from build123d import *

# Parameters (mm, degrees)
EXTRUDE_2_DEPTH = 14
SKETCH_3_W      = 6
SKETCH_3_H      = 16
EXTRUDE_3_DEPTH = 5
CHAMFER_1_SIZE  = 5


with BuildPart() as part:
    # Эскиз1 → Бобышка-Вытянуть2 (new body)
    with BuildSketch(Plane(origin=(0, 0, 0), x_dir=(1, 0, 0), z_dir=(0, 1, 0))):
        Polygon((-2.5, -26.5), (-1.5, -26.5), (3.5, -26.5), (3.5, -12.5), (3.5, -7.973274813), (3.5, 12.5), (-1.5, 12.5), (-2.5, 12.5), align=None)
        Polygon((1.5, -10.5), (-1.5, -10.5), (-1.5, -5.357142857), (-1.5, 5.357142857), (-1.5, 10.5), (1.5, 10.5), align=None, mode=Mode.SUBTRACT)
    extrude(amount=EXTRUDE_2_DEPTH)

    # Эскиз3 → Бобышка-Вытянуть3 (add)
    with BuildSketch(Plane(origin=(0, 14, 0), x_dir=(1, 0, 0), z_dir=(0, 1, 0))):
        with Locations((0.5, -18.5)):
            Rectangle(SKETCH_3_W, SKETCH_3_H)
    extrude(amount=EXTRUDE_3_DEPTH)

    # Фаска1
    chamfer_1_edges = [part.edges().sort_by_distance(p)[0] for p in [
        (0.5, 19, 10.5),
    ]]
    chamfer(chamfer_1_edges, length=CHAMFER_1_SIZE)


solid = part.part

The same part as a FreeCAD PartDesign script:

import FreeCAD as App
import Part
import Sketcher
from FreeCAD import Vector
Q = App.Units.Quantity


def edges_at(feature, points):
    """Names of the edges that pass closest to the given points."""
    edges = feature.Shape.Edges
    near = lambda p: min(range(len(edges)), key=lambda i: edges[i].distToShape(Part.Vertex(*p))[0])
    return sorted({f"Edge{near(p) + 1}" for p in points})


def add_polygon(sketch, points):
    """Adds a closed chain of lines whose ends are joined by coincident constraints."""
    first, n = sketch.GeometryCount, len(points)
    for a, b in zip(points, points[1:] + points[:1]):
        sketch.addGeometry(Part.LineSegment(App.Vector(*a, 0), App.Vector(*b, 0)), False)
    for i in range(n):
        sketch.addConstraint(Sketcher.Constraint("Coincident", first + i, 2, first + (i + 1) % n, 1))

doc = App.newDocument("Part")
body = doc.addObject("PartDesign::Body", "Body")

# Sketch on XZ plane
sketch1 = body.newObject("Sketcher::SketchObject", "Sketch")
sketch1.AttachmentSupport = (doc.getObject("XZ_Plane"), [""])
sketch1.MapMode = "FlatFace"
add_polygon(sketch1, [(-2.5, 26.5), (3.5, 26.5), (3.5, -12.5), (-2.5, -12.5)])  # lines 0-3
add_polygon(sketch1, [(1.5, -10.5), (1.5, 10.5), (-1.5, 10.5), (-1.5, -10.5)])  # lines 4-7
sketch1.addConstraint(Sketcher.Constraint("Horizontal", 0))
sketch1.addConstraint(Sketcher.Constraint("Vertical", 1))
sketch1.addConstraint(Sketcher.Constraint("Horizontal", 2))
sketch1.addConstraint(Sketcher.Constraint("Vertical", 3))
sketch1.addConstraint(Sketcher.Constraint("Vertical", 4))
sketch1.addConstraint(Sketcher.Constraint("Horizontal", 5))
sketch1.addConstraint(Sketcher.Constraint("Vertical", 6))
sketch1.addConstraint(Sketcher.Constraint("Horizontal", 7))
sketch1.addConstraint(Sketcher.Constraint("Symmetric", 4, 2, 6, 2, -1, 1))
sketch1.addConstraint(Sketcher.Constraint("DistanceX", 0, 1, 0, 2, Q("6 mm")))
sketch1.addConstraint(Sketcher.Constraint("DistanceX", 5, 2, 5, 1, Q("3 mm")))
sketch1.addConstraint(Sketcher.Constraint("DistanceY", 1, 2, 1, 1, Q("39 mm")))
sketch1.addConstraint(Sketcher.Constraint("DistanceY", 4, 1, 4, 2, Q("21 mm")))
sketch1.addConstraint(Sketcher.Constraint("DistanceX", 4, 2, 0, 2, Q("2 mm")))
sketch1.addConstraint(Sketcher.Constraint("DistanceY", 4, 2, 0, 2, Q("16 mm")))
pad1 = body.newObject("PartDesign::Pad", "Pad")
pad1.Profile = sketch1
pad1.Length = 14
pad1.Reversed = True

# Sketch on XZ plane
sketch2 = body.newObject("Sketcher::SketchObject", "Sketch001")
sketch2.AttachmentSupport = (doc.getObject("XZ_Plane"), [""])
sketch2.MapMode = "FlatFace"
sketch2.AttachmentOffset = App.Placement(Vector(0, 0, -14), App.Rotation())
add_polygon(sketch2, [(-2, 10), (-2, 26), (4, 26), (4, 10)])  # lines 0-3
sketch2.addConstraint(Sketcher.Constraint("Vertical", 0))
sketch2.addConstraint(Sketcher.Constraint("Horizontal", 1))
sketch2.addConstraint(Sketcher.Constraint("Vertical", 2))
sketch2.addConstraint(Sketcher.Constraint("Horizontal", 3))
sketch2.addConstraint(Sketcher.Constraint("DistanceX", 1, 1, 1, 2, Q("6 mm")))
sketch2.addConstraint(Sketcher.Constraint("DistanceY", 0, 1, 0, 2, Q("16 mm")))
sketch2.addConstraint(Sketcher.Constraint("DistanceX", 0, 2, -1, 1, Q("2.5 mm")))
sketch2.addConstraint(Sketcher.Constraint("DistanceY", -1, 1, 0, 2, Q("26.5 mm")))
pad2 = body.newObject("PartDesign::Pad", "Pad001")
pad2.Profile = sketch2
pad2.Length = 5
pad2.Reversed = True
doc.recompute()

chamfer = body.newObject("PartDesign::Chamfer", "Chamfer")
chamfer.Base = (pad2, edges_at(pad2, [(0.5, 19, 10.5)]))
chamfer.Size = 5

doc.recompute()
